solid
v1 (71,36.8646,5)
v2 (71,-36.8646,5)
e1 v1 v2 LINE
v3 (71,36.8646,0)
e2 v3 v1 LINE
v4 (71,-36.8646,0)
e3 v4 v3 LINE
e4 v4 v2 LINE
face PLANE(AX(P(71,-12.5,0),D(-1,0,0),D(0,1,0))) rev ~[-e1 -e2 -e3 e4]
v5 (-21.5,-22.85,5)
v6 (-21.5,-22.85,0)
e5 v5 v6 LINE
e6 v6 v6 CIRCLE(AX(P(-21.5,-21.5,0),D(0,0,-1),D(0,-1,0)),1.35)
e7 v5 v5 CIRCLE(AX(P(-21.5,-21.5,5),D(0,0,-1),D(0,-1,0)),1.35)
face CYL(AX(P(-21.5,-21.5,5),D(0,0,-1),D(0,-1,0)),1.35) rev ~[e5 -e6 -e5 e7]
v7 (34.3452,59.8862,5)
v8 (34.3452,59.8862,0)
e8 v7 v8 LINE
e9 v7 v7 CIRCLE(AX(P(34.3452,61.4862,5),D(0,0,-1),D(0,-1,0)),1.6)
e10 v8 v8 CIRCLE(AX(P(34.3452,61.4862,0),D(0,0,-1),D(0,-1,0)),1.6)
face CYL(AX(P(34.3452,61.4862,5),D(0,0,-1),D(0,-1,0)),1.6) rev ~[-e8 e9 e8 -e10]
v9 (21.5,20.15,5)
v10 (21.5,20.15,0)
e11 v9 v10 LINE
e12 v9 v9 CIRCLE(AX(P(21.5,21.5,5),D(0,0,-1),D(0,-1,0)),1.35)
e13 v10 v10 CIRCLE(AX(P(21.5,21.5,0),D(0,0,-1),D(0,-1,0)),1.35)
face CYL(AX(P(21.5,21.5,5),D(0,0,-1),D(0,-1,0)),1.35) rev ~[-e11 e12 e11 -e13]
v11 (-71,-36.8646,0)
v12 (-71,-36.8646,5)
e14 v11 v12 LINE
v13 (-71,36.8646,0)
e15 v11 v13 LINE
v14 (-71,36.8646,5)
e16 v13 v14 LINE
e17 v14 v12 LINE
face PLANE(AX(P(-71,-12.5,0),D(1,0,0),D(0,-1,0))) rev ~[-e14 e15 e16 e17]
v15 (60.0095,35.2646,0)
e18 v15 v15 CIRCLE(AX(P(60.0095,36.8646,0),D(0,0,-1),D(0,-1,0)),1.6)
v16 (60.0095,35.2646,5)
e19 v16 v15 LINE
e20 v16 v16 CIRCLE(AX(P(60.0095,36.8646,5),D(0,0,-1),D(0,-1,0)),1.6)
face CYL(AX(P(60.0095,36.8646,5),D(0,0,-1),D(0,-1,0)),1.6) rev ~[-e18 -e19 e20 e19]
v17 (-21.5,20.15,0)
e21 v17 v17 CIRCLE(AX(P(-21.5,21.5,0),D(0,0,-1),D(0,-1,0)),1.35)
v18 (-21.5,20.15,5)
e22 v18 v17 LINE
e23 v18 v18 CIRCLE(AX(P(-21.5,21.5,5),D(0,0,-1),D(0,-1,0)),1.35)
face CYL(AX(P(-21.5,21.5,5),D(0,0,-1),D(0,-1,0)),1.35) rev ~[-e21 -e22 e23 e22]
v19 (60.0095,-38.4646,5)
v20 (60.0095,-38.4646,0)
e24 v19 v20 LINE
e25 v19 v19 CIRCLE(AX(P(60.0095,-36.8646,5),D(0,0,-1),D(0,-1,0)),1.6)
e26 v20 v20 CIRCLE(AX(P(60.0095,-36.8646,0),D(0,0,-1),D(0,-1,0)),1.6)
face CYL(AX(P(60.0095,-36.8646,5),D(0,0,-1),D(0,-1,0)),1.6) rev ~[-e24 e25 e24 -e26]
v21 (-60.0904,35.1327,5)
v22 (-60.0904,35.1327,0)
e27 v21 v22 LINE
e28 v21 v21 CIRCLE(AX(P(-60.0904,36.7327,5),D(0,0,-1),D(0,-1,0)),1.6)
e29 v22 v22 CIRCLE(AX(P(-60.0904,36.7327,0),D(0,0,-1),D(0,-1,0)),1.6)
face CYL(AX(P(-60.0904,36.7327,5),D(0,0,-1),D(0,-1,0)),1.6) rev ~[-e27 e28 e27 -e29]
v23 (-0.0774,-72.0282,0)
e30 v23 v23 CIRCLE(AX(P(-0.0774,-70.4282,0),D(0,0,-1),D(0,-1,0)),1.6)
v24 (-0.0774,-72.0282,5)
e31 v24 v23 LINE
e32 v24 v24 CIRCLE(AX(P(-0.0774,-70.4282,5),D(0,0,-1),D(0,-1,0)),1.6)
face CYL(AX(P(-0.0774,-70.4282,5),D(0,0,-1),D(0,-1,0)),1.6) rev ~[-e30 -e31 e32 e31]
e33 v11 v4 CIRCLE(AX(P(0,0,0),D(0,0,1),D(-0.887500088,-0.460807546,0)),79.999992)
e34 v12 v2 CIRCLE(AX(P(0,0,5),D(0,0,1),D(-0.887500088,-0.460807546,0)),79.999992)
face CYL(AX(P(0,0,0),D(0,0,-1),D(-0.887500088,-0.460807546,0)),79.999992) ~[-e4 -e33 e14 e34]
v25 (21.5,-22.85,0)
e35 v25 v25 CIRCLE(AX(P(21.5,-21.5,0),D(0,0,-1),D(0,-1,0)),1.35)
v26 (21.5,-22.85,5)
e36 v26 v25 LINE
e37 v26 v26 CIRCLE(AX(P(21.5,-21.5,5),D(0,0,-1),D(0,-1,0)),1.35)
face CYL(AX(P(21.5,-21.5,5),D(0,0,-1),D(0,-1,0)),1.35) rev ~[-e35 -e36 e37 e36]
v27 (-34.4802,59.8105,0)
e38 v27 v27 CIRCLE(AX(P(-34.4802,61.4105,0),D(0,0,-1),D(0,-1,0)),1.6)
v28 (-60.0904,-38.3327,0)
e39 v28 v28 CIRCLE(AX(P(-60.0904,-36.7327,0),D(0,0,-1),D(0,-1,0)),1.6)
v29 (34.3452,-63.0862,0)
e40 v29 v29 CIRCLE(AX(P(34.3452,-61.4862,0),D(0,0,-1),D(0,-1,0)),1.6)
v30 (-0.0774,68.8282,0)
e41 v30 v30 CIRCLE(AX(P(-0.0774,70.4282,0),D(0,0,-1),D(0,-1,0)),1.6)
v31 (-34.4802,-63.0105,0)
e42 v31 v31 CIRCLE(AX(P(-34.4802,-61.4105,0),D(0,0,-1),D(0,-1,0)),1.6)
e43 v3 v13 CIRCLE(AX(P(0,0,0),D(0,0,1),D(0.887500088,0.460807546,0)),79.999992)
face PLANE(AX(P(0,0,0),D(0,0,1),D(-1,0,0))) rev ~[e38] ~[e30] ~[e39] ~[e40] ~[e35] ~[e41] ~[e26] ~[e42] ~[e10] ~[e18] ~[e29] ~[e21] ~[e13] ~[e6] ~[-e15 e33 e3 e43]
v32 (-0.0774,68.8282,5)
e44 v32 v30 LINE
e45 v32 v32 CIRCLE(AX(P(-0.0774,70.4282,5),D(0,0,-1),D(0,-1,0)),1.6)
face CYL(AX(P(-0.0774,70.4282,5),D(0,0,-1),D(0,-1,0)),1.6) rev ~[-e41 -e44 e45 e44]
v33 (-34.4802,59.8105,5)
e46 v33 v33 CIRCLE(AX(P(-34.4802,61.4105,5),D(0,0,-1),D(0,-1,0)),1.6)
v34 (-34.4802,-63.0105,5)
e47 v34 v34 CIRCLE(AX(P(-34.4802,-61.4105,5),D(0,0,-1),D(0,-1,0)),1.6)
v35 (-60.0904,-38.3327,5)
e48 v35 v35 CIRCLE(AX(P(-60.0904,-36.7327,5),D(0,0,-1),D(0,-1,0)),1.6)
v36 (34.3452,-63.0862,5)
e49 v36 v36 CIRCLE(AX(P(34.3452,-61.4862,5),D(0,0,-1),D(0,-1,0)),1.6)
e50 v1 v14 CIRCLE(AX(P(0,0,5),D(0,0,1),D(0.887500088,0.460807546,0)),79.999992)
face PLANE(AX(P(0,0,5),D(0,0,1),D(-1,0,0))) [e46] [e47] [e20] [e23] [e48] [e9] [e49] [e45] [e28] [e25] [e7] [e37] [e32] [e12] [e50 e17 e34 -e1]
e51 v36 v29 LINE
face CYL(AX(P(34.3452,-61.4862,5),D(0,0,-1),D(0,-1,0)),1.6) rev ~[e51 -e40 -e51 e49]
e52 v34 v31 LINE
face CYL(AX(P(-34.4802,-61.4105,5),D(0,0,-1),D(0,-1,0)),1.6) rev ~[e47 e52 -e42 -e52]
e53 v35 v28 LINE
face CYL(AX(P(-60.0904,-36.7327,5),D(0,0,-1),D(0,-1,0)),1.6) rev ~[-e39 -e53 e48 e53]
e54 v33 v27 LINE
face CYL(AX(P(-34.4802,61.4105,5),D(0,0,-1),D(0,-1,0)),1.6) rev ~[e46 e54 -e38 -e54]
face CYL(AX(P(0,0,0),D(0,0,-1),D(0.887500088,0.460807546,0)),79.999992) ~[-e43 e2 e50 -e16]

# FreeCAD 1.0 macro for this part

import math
import FreeCAD as App
import Part
import Sketcher

V = App.Vector
Q = App.Units.Quantity

doc = App.newDocument("Part")
params = doc.addObject("Spreadsheet::Sheet", "Params")
for row, (alias, value) in enumerate([
    ("sketch1_radius", "80 mm"),
    ("pad1_length", "5 mm"),
    ("sketch2_diameter", "3.2 mm"),
    ("hole_diameter", "3.2 mm"),
    ("sketch3_diameter", "2.7 mm"),
    ("hole2_diameter", "2.7 mm"),
], start=1):
    params.set(f"A{row}", alias)
    params.set(f"B{row}", "=" + value)
    params.setAlias(f"B{row}", alias)

body = doc.addObject("PartDesign::Body", "Body")

sketch1 = doc.addObject("Sketcher::SketchObject", "Sketch")
body.addObject(sketch1)
sketch1.AttachmentSupport = (doc.XY_Plane, [""])
sketch1.MapMode = "FlatFace"
sketch1.addGeometry([
    Part.ArcOfCircle(Part.Circle(V(0, 0, 0), V(0, 0, 1), 80), math.radians(27), math.radians(153)),
    Part.LineSegment(V(-71, 37, 0), V(-71, -37, 0)),
    Part.ArcOfCircle(Part.Circle(V(0, 0, 0), V(0, 0, 1), 80), math.radians(-153), math.radians(-27)),
    Part.LineSegment(V(71, -37, 0), V(71, 37, 0)),
], False)
sketch1.addConstraint([
    Sketcher.Constraint("Coincident", 0, 2, 1, 1),
    Sketcher.Constraint("Coincident", 1, 2, 2, 1),
    Sketcher.Constraint("Coincident", 2, 2, 3, 1),
    Sketcher.Constraint("Coincident", 3, 2, 0, 1),
    Sketcher.Constraint("Vertical", 1),
    Sketcher.Constraint("Vertical", 3),
    Sketcher.Constraint("Coincident", 0, 3, -1, 1),
    Sketcher.Constraint("Coincident", 2, 3, -1, 1),
    Sketcher.Constraint("Equal", 0, 2),
    Sketcher.Constraint("Horizontal", 1, 2, 2, 2),
    Sketcher.Constraint("Radius", 0, Q("80 mm")),
    Sketcher.Constraint("DistanceX", 0, 2, -1, 1, Q("71 mm")),
])
sketch1.setExpression("Constraints[10]", "Params.sketch1_radius")
pad1 = doc.addObject("PartDesign::Pad", "Pad")
body.addObject(pad1)
pad1.Profile = sketch1
pad1.setExpression("Length", "Params.pad1_length")

sketch2 = doc.addObject("Sketcher::SketchObject", "Sketch001")
body.addObject(sketch2)
sketch2.AttachmentSupport = (doc.XY_Plane, [""])
sketch2.MapMode = "FlatFace"
sketch2.AttachmentOffset = App.Placement(V(0, 0, 5), App.Rotation())
sketch2.addGeometry([
    Part.Circle(V(-60.1, 36.7, 0), V(0, 0, 1), 1.6),
    Part.Circle(V(-34.5, 61.4, 0), V(0, 0, 1), 1.6),
    Part.Circle(V(-0.1, 70.4, 0), V(0, 0, 1), 1.6),
    Part.Circle(V(34.3, 61.5, 0), V(0, 0, 1), 1.6),
    Part.Circle(V(60, 36.9, 0), V(0, 0, 1), 1.6),
    Part.Circle(V(-60.1, -36.7, 0), V(0, 0, 1), 1.6),
    Part.Circle(V(-34.5, -61.4, 0), V(0, 0, 1), 1.6),
    Part.Circle(V(-0.1, -70.4, 0), V(0, 0, 1), 1.6),
    Part.Circle(V(34.3, -61.5, 0), V(0, 0, 1), 1.6),
    Part.Circle(V(60, -36.9, 0), V(0, 0, 1), 1.6),
], False)
sketch2.addConstraint([
    Sketcher.Constraint("Equal", 0, 1),
    Sketcher.Constraint("Equal", 1, 2),
    Sketcher.Constraint("Equal", 2, 3),
    Sketcher.Constraint("Equal", 3, 4),
    Sketcher.Constraint("Equal", 4, 5),
    Sketcher.Constraint("Equal", 5, 6),
    Sketcher.Constraint("Equal", 6, 7),
    Sketcher.Constraint("Equal", 7, 8),
    Sketcher.Constraint("Equal", 8, 9),
    Sketcher.Constraint("Symmetric", 0, 3, 5, 3, -1),
    Sketcher.Constraint("Symmetric", 1, 3, 6, 3, -1),
    Sketcher.Constraint("Symmetric", 2, 3, 7, 3, -1),
    Sketcher.Constraint("Symmetric", 3, 3, 8, 3, -1),
    Sketcher.Constraint("Symmetric", 4, 3, 9, 3, -1),
    Sketcher.Constraint("Diameter", 0, Q("3.2 mm")),
    Sketcher.Constraint("DistanceX", 0, 3, 4, 3, Q("120.1 mm")),
    Sketcher.Constraint("DistanceX", 0, 3, 2, 3, Q("60.013 mm")),
    Sketcher.Constraint("DistanceY", 3, 3, 2, 3, Q("8.942 mm")),
    Sketcher.Constraint("DistanceY", 4, 3, 1, 3, Q("24.546 mm")),
    Sketcher.Constraint("DistanceY", 0, 3, 4, 3, Q("0.132 mm")),
    Sketcher.Constraint("DistanceY", 5, 3, 2, 3, Q("107.161 mm")),
    Sketcher.Constraint("DistanceY", 6, 3, 1, 3, Q("122.821 mm")),
    Sketcher.Constraint("DistanceX", 0, 3, -1, 1, Q("60.0904 mm")),
    Sketcher.Constraint("DistanceX", 1, 3, -1, 1, Q("34.4802 mm")),
    Sketcher.Constraint("DistanceX", -1, 1, 3, 3, Q("34.3452 mm")),
])
sketch2.setExpression("Constraints[14]", "Params.sketch2_diameter")
doc.recompute()
hole = doc.addObject("PartDesign::Hole", "Hole")
body.addObject(hole)
hole.Profile = sketch2
hole.ThreadType = "None"
hole.setExpression("Diameter", "Params.hole_diameter")
hole.DepthType = "ThroughAll"

sketch3 = doc.addObject("Sketcher::SketchObject", "Sketch002")
body.addObject(sketch3)
sketch3.AttachmentSupport = (doc.XY_Plane, [""])
sketch3.MapMode = "FlatFace"
sketch3.AttachmentOffset = App.Placement(V(0, 0, 5), App.Rotation())
sketch3.addGeometry([
    Part.Circle(V(-21.5, 21.5, 0), V(0, 0, 1), 1.4),
    Part.Circle(V(21.5, 21.5, 0), V(0, 0, 1), 1.4),
    Part.Circle(V(-21.5, -21.5, 0), V(0, 0, 1), 1.4),
    Part.Circle(V(21.5, -21.5, 0), V(0, 0, 1), 1.4),
], False)
sketch3.addConstraint([
    Sketcher.Constraint("Equal", 0, 1),
    Sketcher.Constraint("Equal", 1, 2),
    Sketcher.Constraint("Equal", 2, 3),
    Sketcher.Constraint("Symmetric", 1, 3, 2, 3, -1, 1),
    Sketcher.Constraint("Symmetric", 0, 3, 3, 3, -1, 1),
    Sketcher.Constraint("Symmetric", 0, 3, 1, 3, -2),
    Sketcher.Constraint("Diameter", 0, Q("2.7 mm")),
    Sketcher.Constraint("DistanceX", 0, 3, 1, 3, Q("43 mm")),
    Sketcher.Constraint("DistanceY", 2, 3, 0, 3, Q("43 mm")),
])
sketch3.setExpression("Constraints[6]", "Params.sketch3_diameter")
doc.recompute()
hole2 = doc.addObject("PartDesign::Hole", "Hole001")
body.addObject(hole2)
hole2.Profile = sketch3
hole2.ThreadType = "None"
hole2.setExpression("Diameter", "Params.hole2_diameter")
hole2.DepthType = "ThroughAll"

doc.recompute()
